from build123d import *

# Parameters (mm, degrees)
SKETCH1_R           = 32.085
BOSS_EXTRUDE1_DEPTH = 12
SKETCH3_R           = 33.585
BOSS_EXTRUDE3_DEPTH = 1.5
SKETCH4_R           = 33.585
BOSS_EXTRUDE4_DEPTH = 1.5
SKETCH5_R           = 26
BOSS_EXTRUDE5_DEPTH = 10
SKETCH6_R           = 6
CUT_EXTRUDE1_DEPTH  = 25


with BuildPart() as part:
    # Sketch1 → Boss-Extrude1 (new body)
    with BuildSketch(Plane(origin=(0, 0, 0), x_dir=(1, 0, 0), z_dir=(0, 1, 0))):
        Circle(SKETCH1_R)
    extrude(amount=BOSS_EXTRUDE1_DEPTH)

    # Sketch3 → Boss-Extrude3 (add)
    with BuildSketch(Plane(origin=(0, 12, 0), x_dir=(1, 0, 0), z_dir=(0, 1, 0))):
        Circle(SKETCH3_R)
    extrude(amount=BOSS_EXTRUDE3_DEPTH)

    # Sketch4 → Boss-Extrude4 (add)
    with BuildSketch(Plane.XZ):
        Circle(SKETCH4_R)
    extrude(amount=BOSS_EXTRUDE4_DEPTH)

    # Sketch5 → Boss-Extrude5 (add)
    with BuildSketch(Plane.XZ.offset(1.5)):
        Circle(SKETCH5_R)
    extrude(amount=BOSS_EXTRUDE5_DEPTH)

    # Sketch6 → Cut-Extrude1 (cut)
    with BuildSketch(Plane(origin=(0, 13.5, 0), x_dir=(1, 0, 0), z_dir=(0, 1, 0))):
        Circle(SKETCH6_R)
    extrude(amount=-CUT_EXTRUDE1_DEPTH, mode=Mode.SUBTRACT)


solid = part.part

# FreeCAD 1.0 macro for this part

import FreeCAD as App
import Part
import Sketcher

V = App.Vector
Q = App.Units.Quantity

doc = App.newDocument("Part")
body = doc.addObject("PartDesign::Body", "Body")

# Sketch on XZ plane
sketch1 = body.newObject("Sketcher::SketchObject", "Sketch")
sketch1.AttachmentSupport = (doc.getObject("XZ_Plane"), [""])
sketch1.MapMode = "FlatFace"
sketch1.addGeometry(Part.Circle(V(0, 0, 0), V(0, 0, 1), 32.085), False)
sketch1.addConstraint([
    Sketcher.Constraint("Coincident", 0, 3, -1, 1),
    Sketcher.Constraint("Diameter", 0, Q("64.17 mm")),
])
pad1 = body.newObject("PartDesign::Pad", "Pad")
pad1.Profile = sketch1
pad1.Length = 12
pad1.Reversed = True

# Sketch on XZ plane
sketch2 = body.newObject("Sketcher::SketchObject", "Sketch001")
sketch2.AttachmentSupport = (doc.getObject("XZ_Plane"), [""])
sketch2.MapMode = "FlatFace"
sketch2.AttachmentOffset = App.Placement(V(0, 0, -12), App.Rotation())
sketch2.addGeometry(Part.Circle(V(0, 0, 0), V(0, 0, 1), 33.585), False)
sketch2.addConstraint([
    Sketcher.Constraint("Coincident", 0, 3, -1, 1),
    Sketcher.Constraint("Diameter", 0, Q("67.17 mm")),
])
pad2 = body.newObject("PartDesign::Pad", "Pad001")
pad2.Profile = sketch2
pad2.Length = 1.5
pad2.Reversed = True

# Sketch on XZ plane
sketch3 = body.newObject("Sketcher::SketchObject", "Sketch002")
sketch3.AttachmentSupport = (doc.getObject("XZ_Plane"), [""])
sketch3.MapMode = "FlatFace"
sketch3.addGeometry(Part.Circle(V(0, 0, 0), V(0, 0, 1), 33.585), False)
sketch3.addConstraint([
    Sketcher.Constraint("Coincident", 0, 3, -1, 1),
    Sketcher.Constraint("Diameter", 0, Q("67.17 mm")),
])
pad3 = body.newObject("PartDesign::Pad", "Pad002")
pad3.Profile = sketch3
pad3.Length = 1.5

# Sketch on XZ plane
sketch4 = body.newObject("Sketcher::SketchObject", "Sketch003")
sketch4.AttachmentSupport = (doc.getObject("XZ_Plane"), [""])
sketch4.MapMode = "FlatFace"
sketch4.AttachmentOffset = App.Placement(V(0, 0, 1.5), App.Rotation())
sketch4.addGeometry(Part.Circle(V(0, 0, 0), V(0, 0, 1), 26), False)
sketch4.addConstraint([
    Sketcher.Constraint("Coincident", 0, 3, -1, 1),
    Sketcher.Constraint("Diameter", 0, Q("52 mm")),
])
pad4 = body.newObject("PartDesign::Pad", "Pad003")
pad4.Profile = sketch4
pad4.Length = 10

# Sketch on XZ plane
sketch5 = body.newObject("Sketcher::SketchObject", "Sketch004")
sketch5.AttachmentSupport = (doc.getObject("XZ_Plane"), [""])
sketch5.MapMode = "FlatFace"
sketch5.AttachmentOffset = App.Placement(V(0, 0, -13.5), App.Rotation())
sketch5.addGeometry(Part.Circle(V(0, 0, 0), V(0, 0, 1), 6), False)
sketch5.addConstraint([
    Sketcher.Constraint("Coincident", 0, 3, -1, 1),
    Sketcher.Constraint("Diameter", 0, Q("12 mm")),
])
pocket1 = body.newObject("PartDesign::Pocket", "Pocket")
pocket1.Profile = sketch5
pocket1.Length = 25
pocket1.Reversed = True

doc.recompute()
